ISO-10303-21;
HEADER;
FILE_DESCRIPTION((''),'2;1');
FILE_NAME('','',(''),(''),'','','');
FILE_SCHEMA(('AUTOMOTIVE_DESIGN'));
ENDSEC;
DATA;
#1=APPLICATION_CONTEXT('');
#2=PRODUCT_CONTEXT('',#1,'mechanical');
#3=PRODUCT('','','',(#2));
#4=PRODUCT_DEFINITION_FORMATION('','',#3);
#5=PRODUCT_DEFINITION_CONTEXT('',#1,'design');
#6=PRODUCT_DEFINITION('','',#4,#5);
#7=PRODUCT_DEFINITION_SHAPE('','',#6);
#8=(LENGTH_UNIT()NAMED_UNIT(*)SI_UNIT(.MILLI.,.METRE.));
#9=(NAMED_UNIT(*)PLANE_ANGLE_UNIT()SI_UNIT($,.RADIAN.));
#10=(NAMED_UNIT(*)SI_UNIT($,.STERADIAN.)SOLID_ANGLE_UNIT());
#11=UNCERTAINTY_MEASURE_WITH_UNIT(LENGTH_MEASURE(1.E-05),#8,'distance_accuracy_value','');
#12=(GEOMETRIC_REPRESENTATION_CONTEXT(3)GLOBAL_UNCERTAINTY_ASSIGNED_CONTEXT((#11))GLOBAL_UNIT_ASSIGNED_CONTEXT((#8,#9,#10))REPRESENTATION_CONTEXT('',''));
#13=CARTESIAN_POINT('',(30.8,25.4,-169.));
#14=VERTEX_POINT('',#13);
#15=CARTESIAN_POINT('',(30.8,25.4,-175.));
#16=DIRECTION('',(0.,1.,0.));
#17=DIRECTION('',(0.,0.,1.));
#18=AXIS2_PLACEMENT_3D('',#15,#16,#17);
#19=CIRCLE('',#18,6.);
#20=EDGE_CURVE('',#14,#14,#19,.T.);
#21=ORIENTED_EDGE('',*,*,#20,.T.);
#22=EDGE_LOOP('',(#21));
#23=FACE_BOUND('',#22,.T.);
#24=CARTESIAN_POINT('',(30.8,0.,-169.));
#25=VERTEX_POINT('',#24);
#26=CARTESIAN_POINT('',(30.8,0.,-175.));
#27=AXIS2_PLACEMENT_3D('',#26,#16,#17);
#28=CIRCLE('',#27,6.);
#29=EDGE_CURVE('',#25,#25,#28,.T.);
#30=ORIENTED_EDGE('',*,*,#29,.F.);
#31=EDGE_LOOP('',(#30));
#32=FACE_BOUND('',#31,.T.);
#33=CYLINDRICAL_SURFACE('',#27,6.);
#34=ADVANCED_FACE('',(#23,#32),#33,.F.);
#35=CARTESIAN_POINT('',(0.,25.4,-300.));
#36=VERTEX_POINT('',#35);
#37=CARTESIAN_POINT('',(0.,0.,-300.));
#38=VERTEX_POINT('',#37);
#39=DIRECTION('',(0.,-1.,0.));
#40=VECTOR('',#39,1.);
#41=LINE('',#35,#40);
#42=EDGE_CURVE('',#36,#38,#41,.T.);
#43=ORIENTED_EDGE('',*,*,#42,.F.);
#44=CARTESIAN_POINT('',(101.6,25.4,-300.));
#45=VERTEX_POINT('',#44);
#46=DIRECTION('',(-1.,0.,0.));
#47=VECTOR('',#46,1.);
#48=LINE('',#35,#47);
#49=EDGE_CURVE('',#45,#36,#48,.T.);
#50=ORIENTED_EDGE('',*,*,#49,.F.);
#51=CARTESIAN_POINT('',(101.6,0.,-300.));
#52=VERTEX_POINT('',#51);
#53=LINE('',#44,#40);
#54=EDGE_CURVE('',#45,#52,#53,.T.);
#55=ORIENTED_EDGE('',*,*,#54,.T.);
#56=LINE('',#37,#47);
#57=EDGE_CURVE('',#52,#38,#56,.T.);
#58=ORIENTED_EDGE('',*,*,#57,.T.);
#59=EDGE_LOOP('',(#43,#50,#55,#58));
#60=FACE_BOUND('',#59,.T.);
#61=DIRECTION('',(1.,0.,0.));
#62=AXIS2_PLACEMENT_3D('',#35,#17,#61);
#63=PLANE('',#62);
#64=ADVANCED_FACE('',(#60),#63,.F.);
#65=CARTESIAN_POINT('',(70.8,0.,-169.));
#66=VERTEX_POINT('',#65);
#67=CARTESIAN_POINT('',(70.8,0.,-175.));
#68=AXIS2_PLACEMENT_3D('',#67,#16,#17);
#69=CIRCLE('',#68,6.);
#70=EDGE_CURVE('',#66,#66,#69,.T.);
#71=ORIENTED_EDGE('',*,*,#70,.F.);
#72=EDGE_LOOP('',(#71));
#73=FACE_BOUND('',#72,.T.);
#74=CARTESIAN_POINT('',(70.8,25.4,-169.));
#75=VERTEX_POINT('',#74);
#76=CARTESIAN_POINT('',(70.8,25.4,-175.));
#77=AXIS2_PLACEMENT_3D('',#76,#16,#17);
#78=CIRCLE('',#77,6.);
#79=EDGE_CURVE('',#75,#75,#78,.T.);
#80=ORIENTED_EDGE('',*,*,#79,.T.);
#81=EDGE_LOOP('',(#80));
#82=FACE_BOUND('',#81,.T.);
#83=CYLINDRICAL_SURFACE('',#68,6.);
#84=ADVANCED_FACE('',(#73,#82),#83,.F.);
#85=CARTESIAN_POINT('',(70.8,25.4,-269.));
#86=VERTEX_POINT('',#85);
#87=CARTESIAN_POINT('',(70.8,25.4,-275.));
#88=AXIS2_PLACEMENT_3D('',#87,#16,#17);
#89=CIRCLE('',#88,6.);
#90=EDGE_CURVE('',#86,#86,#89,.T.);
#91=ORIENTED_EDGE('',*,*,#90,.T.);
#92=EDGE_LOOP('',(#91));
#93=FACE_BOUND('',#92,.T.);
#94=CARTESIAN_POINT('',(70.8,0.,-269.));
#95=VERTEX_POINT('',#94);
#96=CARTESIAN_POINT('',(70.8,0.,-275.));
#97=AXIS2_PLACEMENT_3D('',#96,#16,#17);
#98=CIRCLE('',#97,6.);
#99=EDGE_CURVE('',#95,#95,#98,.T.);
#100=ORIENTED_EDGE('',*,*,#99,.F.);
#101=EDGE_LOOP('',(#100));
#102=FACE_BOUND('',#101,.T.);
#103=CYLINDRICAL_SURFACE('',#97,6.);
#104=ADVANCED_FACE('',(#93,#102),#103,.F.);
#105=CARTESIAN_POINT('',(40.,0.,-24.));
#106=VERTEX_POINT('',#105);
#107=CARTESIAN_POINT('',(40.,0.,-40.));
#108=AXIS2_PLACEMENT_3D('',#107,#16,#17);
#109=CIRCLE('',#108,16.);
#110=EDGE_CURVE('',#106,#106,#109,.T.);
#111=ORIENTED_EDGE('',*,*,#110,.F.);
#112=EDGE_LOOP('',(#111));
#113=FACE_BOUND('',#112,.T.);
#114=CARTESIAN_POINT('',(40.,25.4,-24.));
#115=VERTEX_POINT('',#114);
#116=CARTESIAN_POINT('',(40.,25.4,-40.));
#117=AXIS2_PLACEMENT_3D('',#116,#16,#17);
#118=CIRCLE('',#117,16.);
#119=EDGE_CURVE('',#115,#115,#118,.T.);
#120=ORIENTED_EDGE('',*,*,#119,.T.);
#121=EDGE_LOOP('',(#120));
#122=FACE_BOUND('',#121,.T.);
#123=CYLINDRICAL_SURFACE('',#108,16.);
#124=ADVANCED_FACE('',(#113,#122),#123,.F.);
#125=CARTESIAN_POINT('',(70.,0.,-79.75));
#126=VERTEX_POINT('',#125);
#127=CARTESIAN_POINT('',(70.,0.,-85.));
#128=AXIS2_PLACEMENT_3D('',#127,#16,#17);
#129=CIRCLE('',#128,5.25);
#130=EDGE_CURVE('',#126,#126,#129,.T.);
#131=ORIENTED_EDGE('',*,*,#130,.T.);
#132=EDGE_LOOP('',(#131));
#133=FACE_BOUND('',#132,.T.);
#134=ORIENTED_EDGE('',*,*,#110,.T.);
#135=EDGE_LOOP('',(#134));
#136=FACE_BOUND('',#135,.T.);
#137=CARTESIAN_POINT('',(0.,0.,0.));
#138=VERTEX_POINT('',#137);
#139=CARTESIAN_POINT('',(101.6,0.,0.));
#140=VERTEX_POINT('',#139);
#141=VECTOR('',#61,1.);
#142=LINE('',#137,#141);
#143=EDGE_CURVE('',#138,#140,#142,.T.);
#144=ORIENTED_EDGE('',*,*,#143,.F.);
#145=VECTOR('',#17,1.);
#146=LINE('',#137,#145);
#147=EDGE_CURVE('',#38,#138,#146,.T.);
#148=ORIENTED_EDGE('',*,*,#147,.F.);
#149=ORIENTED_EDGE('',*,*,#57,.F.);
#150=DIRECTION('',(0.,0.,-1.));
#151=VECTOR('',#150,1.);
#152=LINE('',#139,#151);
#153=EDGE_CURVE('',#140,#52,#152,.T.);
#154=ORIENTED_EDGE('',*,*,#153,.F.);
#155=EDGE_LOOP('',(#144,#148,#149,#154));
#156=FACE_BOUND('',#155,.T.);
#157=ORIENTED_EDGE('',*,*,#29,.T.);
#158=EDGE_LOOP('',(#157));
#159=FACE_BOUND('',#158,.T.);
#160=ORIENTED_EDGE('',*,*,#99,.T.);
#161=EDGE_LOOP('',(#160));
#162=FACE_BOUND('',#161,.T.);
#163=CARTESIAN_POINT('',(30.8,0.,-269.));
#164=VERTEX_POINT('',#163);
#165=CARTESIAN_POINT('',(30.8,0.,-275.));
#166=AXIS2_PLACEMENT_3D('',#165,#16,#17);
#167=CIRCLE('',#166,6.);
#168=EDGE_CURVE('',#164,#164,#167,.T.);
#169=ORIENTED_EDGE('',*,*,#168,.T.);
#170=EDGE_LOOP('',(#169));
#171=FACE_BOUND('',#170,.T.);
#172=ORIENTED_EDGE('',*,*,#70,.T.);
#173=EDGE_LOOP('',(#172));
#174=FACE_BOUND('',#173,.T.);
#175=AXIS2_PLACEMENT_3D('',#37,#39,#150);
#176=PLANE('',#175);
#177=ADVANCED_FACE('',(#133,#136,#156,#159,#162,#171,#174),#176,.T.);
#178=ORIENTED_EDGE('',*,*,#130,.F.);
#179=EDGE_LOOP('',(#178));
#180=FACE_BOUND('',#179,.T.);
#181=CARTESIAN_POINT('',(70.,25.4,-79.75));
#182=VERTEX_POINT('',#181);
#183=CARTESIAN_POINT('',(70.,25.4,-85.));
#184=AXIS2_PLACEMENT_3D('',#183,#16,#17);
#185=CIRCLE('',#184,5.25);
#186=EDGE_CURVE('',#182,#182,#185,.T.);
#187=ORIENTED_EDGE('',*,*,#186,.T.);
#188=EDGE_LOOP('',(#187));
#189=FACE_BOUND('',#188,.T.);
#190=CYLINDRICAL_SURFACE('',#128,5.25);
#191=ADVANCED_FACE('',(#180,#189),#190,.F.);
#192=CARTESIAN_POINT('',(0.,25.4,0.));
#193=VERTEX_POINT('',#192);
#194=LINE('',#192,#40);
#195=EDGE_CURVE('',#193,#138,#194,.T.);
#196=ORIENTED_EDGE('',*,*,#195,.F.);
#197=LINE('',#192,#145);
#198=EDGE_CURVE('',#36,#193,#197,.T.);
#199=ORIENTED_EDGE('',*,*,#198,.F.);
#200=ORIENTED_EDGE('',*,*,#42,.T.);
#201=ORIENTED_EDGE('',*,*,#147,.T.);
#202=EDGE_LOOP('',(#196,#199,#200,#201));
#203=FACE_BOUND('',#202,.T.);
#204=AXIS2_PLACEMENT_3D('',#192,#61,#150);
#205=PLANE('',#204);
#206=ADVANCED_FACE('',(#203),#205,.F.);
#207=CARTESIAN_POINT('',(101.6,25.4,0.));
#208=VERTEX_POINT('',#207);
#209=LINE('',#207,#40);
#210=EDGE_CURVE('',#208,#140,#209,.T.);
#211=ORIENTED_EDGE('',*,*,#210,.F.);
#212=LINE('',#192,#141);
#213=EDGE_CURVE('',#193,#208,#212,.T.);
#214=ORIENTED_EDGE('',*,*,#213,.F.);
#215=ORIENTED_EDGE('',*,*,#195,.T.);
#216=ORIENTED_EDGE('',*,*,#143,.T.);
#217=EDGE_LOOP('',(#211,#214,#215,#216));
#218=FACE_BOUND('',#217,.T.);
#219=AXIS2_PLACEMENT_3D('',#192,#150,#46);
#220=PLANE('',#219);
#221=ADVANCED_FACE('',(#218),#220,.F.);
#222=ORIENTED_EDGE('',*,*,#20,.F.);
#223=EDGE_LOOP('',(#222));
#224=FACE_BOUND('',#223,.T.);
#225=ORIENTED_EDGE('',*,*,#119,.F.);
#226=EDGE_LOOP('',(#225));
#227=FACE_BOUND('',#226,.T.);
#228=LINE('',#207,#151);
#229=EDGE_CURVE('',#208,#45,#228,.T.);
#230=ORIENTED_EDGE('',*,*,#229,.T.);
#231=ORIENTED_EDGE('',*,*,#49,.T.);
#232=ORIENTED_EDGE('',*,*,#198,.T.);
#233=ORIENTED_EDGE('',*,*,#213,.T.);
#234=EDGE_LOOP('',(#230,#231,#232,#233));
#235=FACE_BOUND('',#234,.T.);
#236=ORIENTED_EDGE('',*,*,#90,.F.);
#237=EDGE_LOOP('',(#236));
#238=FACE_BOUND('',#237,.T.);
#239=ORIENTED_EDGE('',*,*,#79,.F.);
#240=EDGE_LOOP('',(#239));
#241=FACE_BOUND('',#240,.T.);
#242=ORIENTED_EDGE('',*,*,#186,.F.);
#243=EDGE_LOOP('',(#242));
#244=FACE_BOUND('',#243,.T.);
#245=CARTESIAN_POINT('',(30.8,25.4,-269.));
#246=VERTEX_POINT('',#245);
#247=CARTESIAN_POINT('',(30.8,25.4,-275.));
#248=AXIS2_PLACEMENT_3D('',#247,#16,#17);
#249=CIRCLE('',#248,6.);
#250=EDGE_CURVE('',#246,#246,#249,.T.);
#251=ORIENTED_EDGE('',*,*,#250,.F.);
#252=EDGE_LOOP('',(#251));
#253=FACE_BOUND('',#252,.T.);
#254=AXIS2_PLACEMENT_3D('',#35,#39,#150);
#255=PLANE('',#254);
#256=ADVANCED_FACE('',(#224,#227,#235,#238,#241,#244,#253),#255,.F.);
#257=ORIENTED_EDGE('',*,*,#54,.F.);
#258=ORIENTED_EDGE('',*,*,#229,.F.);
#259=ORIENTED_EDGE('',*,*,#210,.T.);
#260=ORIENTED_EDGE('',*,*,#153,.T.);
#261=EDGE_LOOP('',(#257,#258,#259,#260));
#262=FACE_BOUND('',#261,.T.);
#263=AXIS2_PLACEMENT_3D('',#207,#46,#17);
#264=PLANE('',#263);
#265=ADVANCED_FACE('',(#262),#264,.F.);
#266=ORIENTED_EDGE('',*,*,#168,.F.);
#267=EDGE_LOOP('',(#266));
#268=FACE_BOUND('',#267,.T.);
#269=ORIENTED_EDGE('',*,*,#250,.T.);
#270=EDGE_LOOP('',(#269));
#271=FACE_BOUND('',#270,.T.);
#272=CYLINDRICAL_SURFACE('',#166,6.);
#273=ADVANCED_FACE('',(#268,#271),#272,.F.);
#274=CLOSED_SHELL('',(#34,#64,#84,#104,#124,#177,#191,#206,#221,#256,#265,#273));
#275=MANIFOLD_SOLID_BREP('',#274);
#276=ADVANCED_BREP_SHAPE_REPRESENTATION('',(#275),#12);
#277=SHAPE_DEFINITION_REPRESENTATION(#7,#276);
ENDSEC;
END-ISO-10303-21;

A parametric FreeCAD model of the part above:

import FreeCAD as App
import Part
import Sketcher

V = App.Vector

doc = App.newDocument("Part")
body = doc.addObject("PartDesign::Body", "Body")

# Sketch on XZ plane
sketch1 = body.newObject("Sketcher::SketchObject", "Sketch")
sketch1.AttachmentSupport = (doc.getObject("XZ_Plane"), [""])
sketch1.MapMode = "FlatFace"
sketch1.addGeometry([
    Part.LineSegment(V(0, -300, 0), V(0, 0, 0)),
    Part.LineSegment(V(0, 0, 0), V(102, 0, 0)),
    Part.LineSegment(V(102, 0, 0), V(102, -300, 0)),
    Part.LineSegment(V(102, -300, 0), V(0, -300, 0)),
], False)
sketch1.addConstraint([
    Sketcher.Constraint("Coincident", 0, 2, 1, 1),
    Sketcher.Constraint("Coincident", 1, 2, 2, 1),
    Sketcher.Constraint("Coincident", 2, 2, 3, 1),
    Sketcher.Constraint("Coincident", 3, 2, 0, 1),
    Sketcher.Constraint("Vertical", 0),
    Sketcher.Constraint("Horizontal", 1),
    Sketcher.Constraint("Vertical", 2),
    Sketcher.Constraint("Horizontal", 3),
    Sketcher.Constraint("Coincident", 0, 2, -1, 1),
    Sketcher.Constraint("DistanceY", 0, 1, 0, 2, 300.0),
    Sketcher.Constraint("DistanceX", 1, 1, 1, 2, 101.6),
])
pad1 = body.newObject("PartDesign::Pad", "Pad")
pad1.Profile = sketch1
pad1.Length = 25.4
pad1.Reversed = True

# Sketch on XZ plane
sketch2 = body.newObject("Sketcher::SketchObject", "Sketch001")
sketch2.AttachmentSupport = (doc.getObject("XZ_Plane"), [""])
sketch2.MapMode = "FlatFace"
sketch2.AttachmentOffset = App.Placement(V(0, 0, -25.4), App.Rotation())
sketch2.addGeometry([
    Part.Circle(V(71, -275, 0), V(0, 0, 1), 6),
    Part.Circle(V(31, -275, 0), V(0, 0, 1), 6),
    Part.Circle(V(31, -175, 0), V(0, 0, 1), 6),
    Part.Circle(V(71, -175, 0), V(0, 0, 1), 6),
], False)
sketch2.addConstraint([
    Sketcher.Constraint("Equal", 0, 1),
    Sketcher.Constraint("Equal", 1, 2),
    Sketcher.Constraint("Equal", 2, 3),
    Sketcher.Constraint("Horizontal", 0, 3, 1, 3),
    Sketcher.Constraint("Horizontal", 2, 3, 3, 3),
    Sketcher.Constraint("Vertical", 1, 3, 2, 3),
    Sketcher.Constraint("Vertical", 0, 3, 3, 3),
    Sketcher.Constraint("Diameter", 0, 12.0),
    Sketcher.Constraint("DistanceY", 0, 3, -1, 1, 275.0),
    Sketcher.Constraint("DistanceY", 2, 3, -1, 1, 175.0),
    Sketcher.Constraint("DistanceX", 1, 3, 0, 3, 40.0),
    Sketcher.Constraint("DistanceX", -1, 1, 0, 3, 70.8),
])
pocket1 = body.newObject("PartDesign::Pocket", "Pocket")
pocket1.Profile = sketch2
pocket1.Length = 25.4
pocket1.Reversed = True

# Sketch on XZ plane
sketch3 = body.newObject("Sketcher::SketchObject", "Sketch002")
sketch3.AttachmentSupport = (doc.getObject("XZ_Plane"), [""])
sketch3.MapMode = "FlatFace"
sketch3.AttachmentOffset = App.Placement(V(0, 0, -25.4), App.Rotation())
sketch3.addGeometry(Part.Circle(V(40, -40, 0), V(0, 0, 1), 16), False)
sketch3.addConstraint([
    Sketcher.Constraint("Diameter", 0, 32.0),
    Sketcher.Constraint("DistanceX", -1, 1, 0, 3, 40.0),
    Sketcher.Constraint("DistanceY", 0, 3, -1, 1, 40.0),
])
pocket2 = body.newObject("PartDesign::Pocket", "Pocket001")
pocket2.Profile = sketch3
pocket2.Length = 25.4
pocket2.Reversed = True

# Sketch on XZ plane
sketch4 = body.newObject("Sketcher::SketchObject", "Sketch003")
sketch4.AttachmentSupport = (doc.getObject("XZ_Plane"), [""])
sketch4.MapMode = "FlatFace"
sketch4.AttachmentOffset = App.Placement(V(0, 0, -25.4), App.Rotation())
sketch4.addGeometry(Part.Circle(V(70, -85, 0), V(0, 0, 1), 5), False)
sketch4.addConstraint([
    Sketcher.Constraint("Diameter", 0, 10.5),
    Sketcher.Constraint("DistanceX", -1, 1, 0, 3, 70.0),
    Sketcher.Constraint("DistanceY", 0, 3, -1, 1, 85.0),
])
pocket3 = body.newObject("PartDesign::Pocket", "Pocket002")
pocket3.Profile = sketch4
pocket3.Length = 25.4
pocket3.Reversed = True

doc.recompute()
